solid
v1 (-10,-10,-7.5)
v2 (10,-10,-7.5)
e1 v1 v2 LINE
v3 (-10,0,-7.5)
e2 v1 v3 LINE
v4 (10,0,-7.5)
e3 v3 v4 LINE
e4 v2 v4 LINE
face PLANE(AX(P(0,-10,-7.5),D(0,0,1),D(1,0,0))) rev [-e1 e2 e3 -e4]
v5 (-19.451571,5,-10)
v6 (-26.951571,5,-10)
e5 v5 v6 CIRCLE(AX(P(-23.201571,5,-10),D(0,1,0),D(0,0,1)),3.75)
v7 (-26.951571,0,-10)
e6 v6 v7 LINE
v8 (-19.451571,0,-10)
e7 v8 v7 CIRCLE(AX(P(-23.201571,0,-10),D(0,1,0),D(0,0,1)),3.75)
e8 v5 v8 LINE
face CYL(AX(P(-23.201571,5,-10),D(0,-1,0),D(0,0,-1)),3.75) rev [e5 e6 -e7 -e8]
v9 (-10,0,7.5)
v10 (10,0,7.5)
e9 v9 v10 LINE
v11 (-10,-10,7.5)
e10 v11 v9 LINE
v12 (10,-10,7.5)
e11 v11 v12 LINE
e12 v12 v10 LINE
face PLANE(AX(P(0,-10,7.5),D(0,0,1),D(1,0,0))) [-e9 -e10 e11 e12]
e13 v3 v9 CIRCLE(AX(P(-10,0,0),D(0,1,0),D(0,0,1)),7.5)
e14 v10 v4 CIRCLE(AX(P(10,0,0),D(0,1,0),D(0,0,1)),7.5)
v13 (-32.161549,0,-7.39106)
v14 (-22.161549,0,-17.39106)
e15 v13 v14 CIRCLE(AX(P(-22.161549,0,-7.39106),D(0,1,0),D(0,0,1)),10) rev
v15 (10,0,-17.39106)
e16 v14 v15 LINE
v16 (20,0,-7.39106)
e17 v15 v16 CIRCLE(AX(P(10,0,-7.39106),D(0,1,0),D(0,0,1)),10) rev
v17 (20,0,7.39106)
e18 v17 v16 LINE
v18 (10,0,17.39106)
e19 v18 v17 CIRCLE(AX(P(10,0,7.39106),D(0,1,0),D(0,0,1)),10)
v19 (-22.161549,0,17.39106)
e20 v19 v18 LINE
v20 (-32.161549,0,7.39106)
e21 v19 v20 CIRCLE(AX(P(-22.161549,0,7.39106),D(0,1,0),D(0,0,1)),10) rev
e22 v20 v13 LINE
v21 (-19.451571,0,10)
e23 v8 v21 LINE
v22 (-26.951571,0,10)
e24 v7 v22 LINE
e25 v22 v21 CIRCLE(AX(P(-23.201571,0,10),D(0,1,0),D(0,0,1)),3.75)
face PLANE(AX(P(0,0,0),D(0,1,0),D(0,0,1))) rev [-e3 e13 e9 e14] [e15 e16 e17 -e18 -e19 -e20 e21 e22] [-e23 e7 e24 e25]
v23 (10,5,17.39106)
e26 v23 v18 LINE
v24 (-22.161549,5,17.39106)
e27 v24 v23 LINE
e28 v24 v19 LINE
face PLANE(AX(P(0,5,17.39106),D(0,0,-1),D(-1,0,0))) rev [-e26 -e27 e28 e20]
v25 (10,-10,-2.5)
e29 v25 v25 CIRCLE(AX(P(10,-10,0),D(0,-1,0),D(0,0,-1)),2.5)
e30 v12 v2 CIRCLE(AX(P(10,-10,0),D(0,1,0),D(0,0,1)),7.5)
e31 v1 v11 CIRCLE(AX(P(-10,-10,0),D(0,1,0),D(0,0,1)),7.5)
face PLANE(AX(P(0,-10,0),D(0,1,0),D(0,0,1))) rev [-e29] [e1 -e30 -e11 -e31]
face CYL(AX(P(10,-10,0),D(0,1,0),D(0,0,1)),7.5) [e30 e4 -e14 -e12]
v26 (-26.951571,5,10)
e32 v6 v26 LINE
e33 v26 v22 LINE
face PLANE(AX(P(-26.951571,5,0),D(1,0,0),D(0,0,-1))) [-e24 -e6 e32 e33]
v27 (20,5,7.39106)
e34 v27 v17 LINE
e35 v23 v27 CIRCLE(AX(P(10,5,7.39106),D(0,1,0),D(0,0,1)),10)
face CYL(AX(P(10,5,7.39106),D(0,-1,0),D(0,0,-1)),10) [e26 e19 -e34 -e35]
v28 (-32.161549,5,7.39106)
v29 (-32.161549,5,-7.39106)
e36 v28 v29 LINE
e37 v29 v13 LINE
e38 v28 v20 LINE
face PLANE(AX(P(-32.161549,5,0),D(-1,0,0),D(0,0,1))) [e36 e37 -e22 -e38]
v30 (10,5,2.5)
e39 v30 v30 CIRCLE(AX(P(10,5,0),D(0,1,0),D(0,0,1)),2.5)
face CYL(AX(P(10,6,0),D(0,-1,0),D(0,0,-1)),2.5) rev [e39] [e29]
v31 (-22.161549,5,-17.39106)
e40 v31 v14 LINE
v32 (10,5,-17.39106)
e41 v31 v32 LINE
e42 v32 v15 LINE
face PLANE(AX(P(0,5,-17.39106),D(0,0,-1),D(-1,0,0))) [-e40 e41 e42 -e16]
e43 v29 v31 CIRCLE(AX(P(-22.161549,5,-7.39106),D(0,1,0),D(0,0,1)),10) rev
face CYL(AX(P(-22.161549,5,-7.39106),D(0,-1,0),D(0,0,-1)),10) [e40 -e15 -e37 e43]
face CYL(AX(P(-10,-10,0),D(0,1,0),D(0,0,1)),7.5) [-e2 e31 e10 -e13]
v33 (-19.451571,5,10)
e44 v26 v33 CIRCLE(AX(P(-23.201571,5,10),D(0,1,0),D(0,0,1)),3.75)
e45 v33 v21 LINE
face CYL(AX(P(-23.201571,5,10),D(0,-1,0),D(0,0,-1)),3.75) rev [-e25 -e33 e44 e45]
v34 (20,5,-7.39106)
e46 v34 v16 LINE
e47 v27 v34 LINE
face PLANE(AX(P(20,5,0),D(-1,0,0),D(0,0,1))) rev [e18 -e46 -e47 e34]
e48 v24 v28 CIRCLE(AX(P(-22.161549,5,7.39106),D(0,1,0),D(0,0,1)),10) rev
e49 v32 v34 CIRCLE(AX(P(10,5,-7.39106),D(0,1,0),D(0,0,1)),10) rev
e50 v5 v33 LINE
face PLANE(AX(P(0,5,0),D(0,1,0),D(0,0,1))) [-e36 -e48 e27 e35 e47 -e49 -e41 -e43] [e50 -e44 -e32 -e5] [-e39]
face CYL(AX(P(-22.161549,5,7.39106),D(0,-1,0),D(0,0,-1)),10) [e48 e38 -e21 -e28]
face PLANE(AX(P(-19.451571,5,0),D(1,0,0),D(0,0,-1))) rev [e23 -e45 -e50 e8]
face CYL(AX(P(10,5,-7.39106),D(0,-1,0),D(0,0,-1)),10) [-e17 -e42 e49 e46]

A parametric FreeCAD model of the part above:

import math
import FreeCAD as App
import Part
import Sketcher
from FreeCAD import Vector
Q = App.Units.Quantity

doc = App.newDocument("Part")
body = doc.addObject("PartDesign::Body", "Body")

sketch1 = body.newObject("Sketcher::SketchObject", "Sketch")
sketch1.AttachmentSupport = (doc.getObject("XZ_Plane"), [""])
sketch1.MapMode = "FlatFace"
sketch1.addGeometry(Part.ArcOfCircle(Part.Circle(Vector(10, -7.39106, 0), Vector(0, 0, 1), 10), math.radians(-90), math.radians(0)), False)
sketch1.addGeometry(Part.LineSegment(Vector(10, -17.39106, 0), Vector(-22.161549, -17.39106, 0)), False)
sketch1.addGeometry(Part.ArcOfCircle(Part.Circle(Vector(-22.161549, -7.39106, 0), Vector(0, 0, 1), 10), math.radians(180), math.radians(270)), False)
sketch1.addGeometry(Part.LineSegment(Vector(-32.161549, -7.39106, 0), Vector(-32.161549, 7.39106, 0)), False)
sketch1.addGeometry(Part.ArcOfCircle(Part.Circle(Vector(-22.161549, 7.39106, 0), Vector(0, 0, 1), 10), math.radians(90), math.radians(180)), False)
sketch1.addGeometry(Part.LineSegment(Vector(-22.161549, 17.39106, 0), Vector(10, 17.39106, 0)), False)
sketch1.addGeometry(Part.ArcOfCircle(Part.Circle(Vector(10, 7.39106, 0), Vector(0, 0, 1), 10), math.radians(0), math.radians(90)), False)
sketch1.addGeometry(Part.LineSegment(Vector(20, 7.39106, 0), Vector(20, -7.39106, 0)), False)
sketch1.addGeometry(Part.LineSegment(Vector(-26.951571, 10, 0), Vector(-26.951571, -10, 0)), False)
sketch1.addGeometry(Part.ArcOfCircle(Part.Circle(Vector(-23.201571, -10, 0), Vector(0, 0, 1), 3.75), math.radians(180), math.radians(360)), False)
sketch1.addGeometry(Part.LineSegment(Vector(-19.451571, -10, 0), Vector(-19.451571, 10, 0)), False)
sketch1.addGeometry(Part.ArcOfCircle(Part.Circle(Vector(-23.201571, 10, 0), Vector(0, 0, 1), 3.75), math.radians(0), math.radians(180)), False)
sketch1.addConstraint(Sketcher.Constraint("Tangent", 0, 1, 1, 1))
sketch1.addConstraint(Sketcher.Constraint("Tangent", 1, 2, 2, 2))
sketch1.addConstraint(Sketcher.Constraint("Tangent", 2, 1, 3, 1))
sketch1.addConstraint(Sketcher.Constraint("Tangent", 3, 2, 4, 2))
sketch1.addConstraint(Sketcher.Constraint("Tangent", 4, 1, 5, 1))
sketch1.addConstraint(Sketcher.Constraint("Tangent", 5, 2, 6, 2))
sketch1.addConstraint(Sketcher.Constraint("Tangent", 6, 1, 7, 1))
sketch1.addConstraint(Sketcher.Constraint("Tangent", 7, 2, 0, 2))
sketch1.addConstraint(Sketcher.Constraint("Tangent", 8, 2, 9, 1))
sketch1.addConstraint(Sketcher.Constraint("Tangent", 9, 2, 10, 1))
sketch1.addConstraint(Sketcher.Constraint("Tangent", 10, 2, 11, 1))
sketch1.addConstraint(Sketcher.Constraint("Tangent", 11, 2, 8, 1))
sketch1.addConstraint(Sketcher.Constraint("Horizontal", 1))
sketch1.addConstraint(Sketcher.Constraint("Vertical", 3))
sketch1.addConstraint(Sketcher.Constraint("Horizontal", 5))
sketch1.addConstraint(Sketcher.Constraint("Vertical", 7))
sketch1.addConstraint(Sketcher.Constraint("Vertical", 8))
sketch1.addConstraint(Sketcher.Constraint("Vertical", 10))
sketch1.addConstraint(Sketcher.Constraint("Equal", 0, 2))
sketch1.addConstraint(Sketcher.Constraint("Equal", 2, 4))
sketch1.addConstraint(Sketcher.Constraint("Equal", 4, 6))
sketch1.addConstraint(Sketcher.Constraint("Radius", 0, Q("10 mm")))
sketch1.addConstraint(Sketcher.Constraint("DistanceY", 8, 2, 8, 1, Q("20 mm")))
sketch1.addConstraint(Sketcher.Constraint("Radius", 9, Q("3.75 mm")))
sketch1.addConstraint(Sketcher.Constraint("DistanceX", -1, 1, 0, 3, Q("10 mm")))
sketch1.addConstraint(Sketcher.Constraint("DistanceY", 9, 3, -1, 1, Q("10 mm")))
sketch1.addConstraint(Sketcher.Constraint("DistanceX", 1, 2, 1, 1, Q("32.161549 mm")))
sketch1.addConstraint(Sketcher.Constraint("DistanceY", 3, 1, 3, 2, Q("14.782119 mm")))
sketch1.addConstraint(Sketcher.Constraint("DistanceY", 0, 3, -1, 1, Q("7.39106 mm")))
sketch1.addConstraint(Sketcher.Constraint("DistanceX", 9, 3, -1, 1, Q("23.201571 mm")))
pad1 = body.newObject("PartDesign::Pad", "Pad")
pad1.Profile = sketch1
pad1.Length = 5
pad1.Reversed = True

sketch2 = body.newObject("Sketcher::SketchObject", "Sketch001")
sketch2.AttachmentSupport = (doc.getObject("XZ_Plane"), [""])
sketch2.MapMode = "FlatFace"
sketch2.addGeometry(Part.LineSegment(Vector(-10, 7.5, 0), Vector(10, 7.5, 0)), False)
sketch2.addGeometry(Part.ArcOfCircle(Part.Circle(Vector(10, 0, 0), Vector(0, 0, 1), 7.5), math.radians(-90), math.radians(90)), False)
sketch2.addGeometry(Part.LineSegment(Vector(10, -7.5, 0), Vector(-10, -7.5, 0)), False)
sketch2.addGeometry(Part.ArcOfCircle(Part.Circle(Vector(-10, 0, 0), Vector(0, 0, 1), 7.5), math.radians(90), math.radians(270)), False)
sketch2.addConstraint(Sketcher.Constraint("Tangent", 0, 2, 1, 2))
sketch2.addConstraint(Sketcher.Constraint("Tangent", 1, 1, 2, 1))
sketch2.addConstraint(Sketcher.Constraint("Tangent", 2, 2, 3, 2))
sketch2.addConstraint(Sketcher.Constraint("Tangent", 3, 1, 0, 1))
sketch2.addConstraint(Sketcher.Constraint("Horizontal", 0))
sketch2.addConstraint(Sketcher.Constraint("Horizontal", 2))
sketch2.addConstraint(Sketcher.Constraint("Symmetric", 1, 3, 3, 3, -1, 1))
sketch2.addConstraint(Sketcher.Constraint("Radius", 1, Q("7.5 mm")))
sketch2.addConstraint(Sketcher.Constraint("DistanceX", 0, 1, 0, 2, Q("20 mm")))
pad2 = body.newObject("PartDesign::Pad", "Pad001")
pad2.Profile = sketch2
pad2.Length = 10

sketch3 = body.newObject("Sketcher::SketchObject", "Sketch002")
sketch3.AttachmentSupport = (doc.getObject("XZ_Plane"), [""])
sketch3.MapMode = "FlatFace"
sketch3.AttachmentOffset = App.Placement(Vector(0, 0, 10), App.Rotation())
sketch3.addGeometry(Part.Circle(Vector(10, 0, 0), Vector(0, 0, 1), 2.5), False)
sketch3.addConstraint(Sketcher.Constraint("PointOnObject", 0, 3, -1))
sketch3.addConstraint(Sketcher.Constraint("Diameter", 0, Q("5 mm")))
sketch3.addConstraint(Sketcher.Constraint("DistanceX", -1, 1, 0, 3, Q("10 mm")))
pocket1 = body.newObject("PartDesign::Pocket", "Pocket")
pocket1.Profile = sketch3
pocket1.Length = 16

doc.recompute()
